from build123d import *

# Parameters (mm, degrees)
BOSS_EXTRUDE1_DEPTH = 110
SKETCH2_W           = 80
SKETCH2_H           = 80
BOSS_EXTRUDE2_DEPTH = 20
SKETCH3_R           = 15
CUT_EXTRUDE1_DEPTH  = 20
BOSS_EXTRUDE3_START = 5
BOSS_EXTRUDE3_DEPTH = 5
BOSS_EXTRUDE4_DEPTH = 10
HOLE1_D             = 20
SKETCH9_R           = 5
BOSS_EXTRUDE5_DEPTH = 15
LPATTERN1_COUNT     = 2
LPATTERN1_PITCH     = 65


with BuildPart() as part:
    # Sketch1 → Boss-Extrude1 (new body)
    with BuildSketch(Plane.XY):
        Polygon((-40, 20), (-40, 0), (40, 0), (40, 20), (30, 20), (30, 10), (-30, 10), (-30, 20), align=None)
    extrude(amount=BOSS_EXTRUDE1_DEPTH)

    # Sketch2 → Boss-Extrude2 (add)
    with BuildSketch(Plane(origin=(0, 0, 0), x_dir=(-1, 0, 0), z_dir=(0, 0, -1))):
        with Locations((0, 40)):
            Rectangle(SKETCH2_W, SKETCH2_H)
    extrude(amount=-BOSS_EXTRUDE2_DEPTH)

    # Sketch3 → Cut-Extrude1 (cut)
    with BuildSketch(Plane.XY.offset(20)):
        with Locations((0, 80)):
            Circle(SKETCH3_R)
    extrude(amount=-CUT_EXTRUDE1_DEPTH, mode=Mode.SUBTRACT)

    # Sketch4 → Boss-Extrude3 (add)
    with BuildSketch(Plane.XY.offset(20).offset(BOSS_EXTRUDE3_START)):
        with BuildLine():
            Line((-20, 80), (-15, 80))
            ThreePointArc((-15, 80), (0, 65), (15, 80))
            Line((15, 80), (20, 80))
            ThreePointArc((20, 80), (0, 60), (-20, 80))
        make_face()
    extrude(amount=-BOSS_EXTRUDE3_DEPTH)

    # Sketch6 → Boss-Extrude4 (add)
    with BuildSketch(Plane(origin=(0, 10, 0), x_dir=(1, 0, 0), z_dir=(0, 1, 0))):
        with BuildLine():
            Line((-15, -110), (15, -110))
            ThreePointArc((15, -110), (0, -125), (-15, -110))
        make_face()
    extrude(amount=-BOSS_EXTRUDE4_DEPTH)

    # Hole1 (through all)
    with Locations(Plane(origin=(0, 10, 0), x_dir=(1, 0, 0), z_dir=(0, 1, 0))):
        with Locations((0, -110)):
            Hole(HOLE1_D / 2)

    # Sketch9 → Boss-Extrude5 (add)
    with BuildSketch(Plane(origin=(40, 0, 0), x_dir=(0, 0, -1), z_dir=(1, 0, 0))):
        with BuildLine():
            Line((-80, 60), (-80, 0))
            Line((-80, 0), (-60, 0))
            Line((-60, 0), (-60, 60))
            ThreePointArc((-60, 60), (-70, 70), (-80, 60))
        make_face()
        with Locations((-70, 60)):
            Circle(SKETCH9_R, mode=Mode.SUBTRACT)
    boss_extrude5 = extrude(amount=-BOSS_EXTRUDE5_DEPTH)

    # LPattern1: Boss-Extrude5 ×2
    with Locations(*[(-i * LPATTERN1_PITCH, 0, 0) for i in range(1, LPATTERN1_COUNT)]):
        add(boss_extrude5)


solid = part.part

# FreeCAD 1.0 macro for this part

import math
import FreeCAD as App
import Part
import Sketcher

doc = App.newDocument("Part")
body = doc.addObject("PartDesign::Body", "Body")

# Sketch on XY plane
sketch1 = doc.addObject("Sketcher::SketchObject", "Sketch")
body.addObject(sketch1)
sketch1.AttachmentSupport = (doc.XY_Plane, [""])
sketch1.MapMode = "FlatFace"
sketch1.addGeometry([
    Part.LineSegment(App.Vector(-40, 20, 0), App.Vector(-40, 0, 0)),  # 0
    Part.LineSegment(App.Vector(-40, 0, 0), App.Vector(40, 0, 0)),  # 1
    Part.LineSegment(App.Vector(40, 0, 0), App.Vector(40, 20, 0)),  # 2
    Part.LineSegment(App.Vector(40, 20, 0), App.Vector(30, 20, 0)),  # 3
    Part.LineSegment(App.Vector(30, 20, 0), App.Vector(30, 10, 0)),  # 4
    Part.LineSegment(App.Vector(30, 10, 0), App.Vector(-30, 10, 0)),  # 5
    Part.LineSegment(App.Vector(-30, 10, 0), App.Vector(-30, 20, 0)),  # 6
    Part.LineSegment(App.Vector(-30, 20, 0), App.Vector(-40, 20, 0)),  # 7
], False)
sketch1.addConstraint([
    Sketcher.Constraint("Coincident", 0, 2, 1, 1),
    Sketcher.Constraint("Coincident", 1, 2, 2, 1),
    Sketcher.Constraint("Coincident", 2, 2, 3, 1),
    Sketcher.Constraint("Coincident", 3, 2, 4, 1),
    Sketcher.Constraint("Coincident", 4, 2, 5, 1),
    Sketcher.Constraint("Coincident", 5, 2, 6, 1),
    Sketcher.Constraint("Coincident", 6, 2, 7, 1),
    Sketcher.Constraint("Coincident", 7, 2, 0, 1),
    Sketcher.Constraint("Vertical", 0),
    Sketcher.Constraint("Horizontal", 1),
    Sketcher.Constraint("Vertical", 2),
    Sketcher.Constraint("Horizontal", 3),
    Sketcher.Constraint("Vertical", 4),
    Sketcher.Constraint("Horizontal", 5),
    Sketcher.Constraint("Vertical", 6),
    Sketcher.Constraint("Horizontal", 7),
    Sketcher.Constraint("Symmetric", 0, 2, 1, 2, -1, 1),
    Sketcher.Constraint("Symmetric", 3, 2, 6, 2, -2),
    Sketcher.Constraint("Equal", 7, 4),
    Sketcher.Constraint("DistanceX", 1, 1, 1, 2, 80.0),
    Sketcher.Constraint("DistanceX", 3, 2, 3, 1, 10.0),
    Sketcher.Constraint("DistanceY", 0, 2, 0, 1, 20.0),
])
pad1 = doc.addObject("PartDesign::Pad", "Pad")
body.addObject(pad1)
pad1.Profile = sketch1
pad1.Length = 110

# Sketch on XY plane
sketch2 = doc.addObject("Sketcher::SketchObject", "Sketch001")
body.addObject(sketch2)
sketch2.AttachmentSupport = (doc.XY_Plane, [""])
sketch2.MapMode = "FlatFace"
sketch2.addGeometry([
    Part.LineSegment(App.Vector(40, 80, 0), App.Vector(40, 0, 0)),
    Part.LineSegment(App.Vector(40, 0, 0), App.Vector(-40, 0, 0)),
    Part.LineSegment(App.Vector(-40, 0, 0), App.Vector(-40, 80, 0)),
    Part.LineSegment(App.Vector(-40, 80, 0), App.Vector(40, 80, 0)),
], False)
sketch2.addConstraint([
    Sketcher.Constraint("Coincident", 0, 2, 1, 1),
    Sketcher.Constraint("Coincident", 1, 2, 2, 1),
    Sketcher.Constraint("Coincident", 2, 2, 3, 1),
    Sketcher.Constraint("Coincident", 3, 2, 0, 1),
    Sketcher.Constraint("Vertical", 0),
    Sketcher.Constraint("Horizontal", 1),
    Sketcher.Constraint("Vertical", 2),
    Sketcher.Constraint("Horizontal", 3),
    Sketcher.Constraint("Symmetric", 0, 2, 1, 2, -1, 1),
    Sketcher.Constraint("Equal", 3, 0),
    Sketcher.Constraint("DistanceX", 1, 2, 1, 1, 80.0),
])
pad2 = doc.addObject("PartDesign::Pad", "Pad001")
body.addObject(pad2)
pad2.Profile = sketch2
pad2.Length = 20

# Sketch on XY plane
sketch3 = doc.addObject("Sketcher::SketchObject", "Sketch002")
body.addObject(sketch3)
sketch3.AttachmentSupport = (doc.XY_Plane, [""])
sketch3.MapMode = "FlatFace"
sketch3.AttachmentOffset = App.Placement(App.Vector(0, 0, 20), App.Rotation())
sketch3.addGeometry(Part.Circle(App.Vector(0, 80, 0), App.Vector(0, 0, 1), 15), False)
sketch3.addConstraint([
    Sketcher.Constraint("PointOnObject", 0, 3, -2),
    Sketcher.Constraint("Diameter", 0, 30.0),
    Sketcher.Constraint("DistanceY", -1, 1, 0, 3, 80.0),
])
pocket1 = doc.addObject("PartDesign::Pocket", "Pocket")
body.addObject(pocket1)
pocket1.Profile = sketch3
pocket1.Length = 20

# Sketch on XY plane
sketch4 = doc.addObject("Sketcher::SketchObject", "Sketch003")
body.addObject(sketch4)
sketch4.AttachmentSupport = (doc.XY_Plane, [""])
sketch4.MapMode = "FlatFace"
sketch4.AttachmentOffset = App.Placement(App.Vector(0, 0, 25), App.Rotation())
sketch4.addGeometry([
    Part.LineSegment(App.Vector(-15, 80, 0), App.Vector(-20, 80, 0)),
    Part.ArcOfCircle(Part.Circle(App.Vector(0, 80, 0), App.Vector(0, 0, 1), 20), math.radians(180), math.radians(360)),
    Part.LineSegment(App.Vector(20, 80, 0), App.Vector(15, 80, 0)),
    Part.ArcOfCircle(Part.Circle(App.Vector(0, 80, 0), App.Vector(0, 0, 1), 15), math.radians(180), math.radians(360)),
], False)
sketch4.addConstraint([
    Sketcher.Constraint("Coincident", 0, 2, 1, 1),
    Sketcher.Constraint("Coincident", 1, 2, 2, 1),
    Sketcher.Constraint("Coincident", 2, 2, 3, 2),
    Sketcher.Constraint("Coincident", 3, 1, 0, 1),
    Sketcher.Constraint("Horizontal", 0),
    Sketcher.Constraint("Horizontal", 2),
    Sketcher.Constraint("Coincident", 3, 3, 1, 3),
    Sketcher.Constraint("Symmetric", 0, 2, 1, 2, -2),
    Sketcher.Constraint("Horizontal", 3, 3, 0, 2),
    Sketcher.Constraint("Radius", 1, 20.0),
    Sketcher.Constraint("Radius", 3, 15.0),
    Sketcher.Constraint("DistanceY", -1, 1, 1, 3, 80.0),
])
pad3 = doc.addObject("PartDesign::Pad", "Pad002")
body.addObject(pad3)
pad3.Profile = sketch4
pad3.Length = 5
pad3.Reversed = True

# Sketch on XZ plane
sketch5 = doc.addObject("Sketcher::SketchObject", "Sketch004")
body.addObject(sketch5)
sketch5.AttachmentSupport = (doc.XZ_Plane, [""])
sketch5.MapMode = "FlatFace"
sketch5.AttachmentOffset = App.Placement(App.Vector(0, 0, -10), App.Rotation())
sketch5.addGeometry([
    Part.LineSegment(App.Vector(15, 110, 0), App.Vector(-15, 110, 0)),
    Part.ArcOfCircle(Part.Circle(App.Vector(0, 110, 0), App.Vector(0, 0, 1), 15), math.radians(0), math.radians(180)),
], False)
sketch5.addConstraint([
    Sketcher.Constraint("Coincident", 0, 1, 1, 1),
    Sketcher.Constraint("Coincident", 1, 2, 0, 2),
    Sketcher.Constraint("Horizontal", 0),
    Sketcher.Constraint("PointOnObject", 1, 3, -2),
    Sketcher.Constraint("Horizontal", 1, 3, 0, 1),
    Sketcher.Constraint("Radius", 1, 15.0),
    Sketcher.Constraint("DistanceY", -1, 1, 1, 3, 110.0),
])
pad4 = doc.addObject("PartDesign::Pad", "Pad003")
body.addObject(pad4)
pad4.Profile = sketch5
pad4.Length = 10

# Sketch on XZ plane
sketch6 = doc.addObject("Sketcher::SketchObject", "Sketch005")
body.addObject(sketch6)
sketch6.AttachmentSupport = (doc.XZ_Plane, [""])
sketch6.MapMode = "FlatFace"
sketch6.AttachmentOffset = App.Placement(App.Vector(0, 0, -10), App.Rotation())
sketch6.addGeometry(Part.Circle(App.Vector(0, 110, 0), App.Vector(0, 0, 1), 10), False)
sketch6.addConstraint([
    Sketcher.Constraint("PointOnObject", 0, 3, -2),
    Sketcher.Constraint("Diameter", 0, 20.0),
    Sketcher.Constraint("DistanceY", -1, 1, 0, 3, 110.0),
])
doc.recompute()
hole = doc.addObject("PartDesign::Hole", "Hole")
body.addObject(hole)
hole.Profile = sketch6
hole.ThreadType = "None"
hole.Diameter = 20
hole.DepthType = "ThroughAll"
hole.Reversed = True

# Sketch on YZ plane
sketch7 = doc.addObject("Sketcher::SketchObject", "Sketch006")
body.addObject(sketch7)
sketch7.AttachmentSupport = (doc.YZ_Plane, [""])
sketch7.MapMode = "FlatFace"
sketch7.AttachmentOffset = App.Placement(App.Vector(0, 0, 40), App.Rotation())
sketch7.addGeometry([
    Part.LineSegment(App.Vector(60, 80, 0), App.Vector(0, 80, 0)),  # 0
    Part.LineSegment(App.Vector(0, 80, 0), App.Vector(0, 60, 0)),  # 1
    Part.LineSegment(App.Vector(0, 60, 0), App.Vector(60, 60, 0)),  # 2
    Part.ArcOfCircle(Part.Circle(App.Vector(60, 70, 0), App.Vector(0, 0, 1), 10), math.radians(-90), math.radians(90)),  # 3
    Part.Circle(App.Vector(60, 70, 0), App.Vector(0, 0, 1), 5),  # 4
], False)
sketch7.addConstraint([
    Sketcher.Constraint("Coincident", 0, 2, 1, 1),
    Sketcher.Constraint("Coincident", 1, 2, 2, 1),
    Sketcher.Constraint("Tangent", 2, 2, 3, 1),
    Sketcher.Constraint("Tangent", 3, 2, 0, 1),
    Sketcher.Constraint("Horizontal", 0),
    Sketcher.Constraint("Vertical", 1),
    Sketcher.Constraint("Horizontal", 2),
    Sketcher.Constraint("Coincident", 4, 3, 3, 3),
    Sketcher.Constraint("PointOnObject", 0, 2, -2),
    Sketcher.Constraint("Diameter", 4, 10.0),
    Sketcher.Constraint("Radius", 3, 10.0),
    Sketcher.Constraint("DistanceX", 0, 2, 0, 1, 60.0),
    Sketcher.Constraint("DistanceY", -1, 1, 3, 3, 70.0),
])
pad5 = doc.addObject("PartDesign::Pad", "Pad004")
body.addObject(pad5)
pad5.Profile = sketch7
pad5.Length = 15
pad5.Reversed = True
doc.recompute()

linearpattern = doc.addObject("PartDesign::LinearPattern", "LinearPattern")
body.addObject(linearpattern)
linearpattern.Originals = [pad5]
linearpattern.Direction = (doc.X_Axis, [""])
linearpattern.Mode = "offset"
linearpattern.Offset = 65
linearpattern.Occurrences = 2
linearpattern.Reversed = True
body.Tip = linearpattern

doc.recompute()
